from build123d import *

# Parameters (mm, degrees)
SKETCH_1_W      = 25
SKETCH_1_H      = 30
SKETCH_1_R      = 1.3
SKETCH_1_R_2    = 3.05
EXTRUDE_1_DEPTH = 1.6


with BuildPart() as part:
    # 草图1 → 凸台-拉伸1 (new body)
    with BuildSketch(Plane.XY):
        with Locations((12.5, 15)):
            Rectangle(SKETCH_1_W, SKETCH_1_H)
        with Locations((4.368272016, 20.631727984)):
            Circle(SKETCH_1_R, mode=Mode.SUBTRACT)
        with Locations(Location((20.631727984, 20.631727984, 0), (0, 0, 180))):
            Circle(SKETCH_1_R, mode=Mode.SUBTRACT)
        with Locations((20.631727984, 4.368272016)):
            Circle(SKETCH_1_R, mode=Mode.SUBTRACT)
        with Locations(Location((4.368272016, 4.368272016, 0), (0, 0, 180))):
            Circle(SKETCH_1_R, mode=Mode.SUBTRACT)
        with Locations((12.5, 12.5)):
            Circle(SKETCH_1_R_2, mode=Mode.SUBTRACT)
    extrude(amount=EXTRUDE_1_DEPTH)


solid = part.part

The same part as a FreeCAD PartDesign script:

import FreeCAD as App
import Part
import Sketcher
from FreeCAD import Vector
Q = App.Units.Quantity


def add_polygon(sketch, points):
    """Adds a closed chain of lines whose ends are joined by coincident constraints."""
    first, n = sketch.GeometryCount, len(points)
    for a, b in zip(points, points[1:] + points[:1]):
        sketch.addGeometry(Part.LineSegment(App.Vector(*a, 0), App.Vector(*b, 0)), False)
    for i in range(n):
        sketch.addConstraint(Sketcher.Constraint("Coincident", first + i, 2, first + (i + 1) % n, 1))

doc = App.newDocument("Part")
params = doc.addObject("Spreadsheet::Sheet", "Params")
for row, (alias, value) in enumerate([
    ("sketch1_diameter", "2.6 mm"),
    ("sketch1_diameter2", "6.1 mm"),
    ("sketch1_width", "25 mm"),
    ("sketch1_height", "30 mm"),
    ("pad1_length", "1.6 mm"),
], start=1):
    params.set(f"A{row}", alias)
    params.set(f"B{row}", "=" + value)
    params.setAlias(f"B{row}", alias)

body = doc.addObject("PartDesign::Body", "Body")

sketch1 = body.newObject("Sketcher::SketchObject", "Sketch")
sketch1.AttachmentSupport = (doc.getObject("XY_Plane"), [""])
sketch1.MapMode = "FlatFace"
add_polygon(sketch1, [(0, 30), (0, 0), (25, 0), (25, 30)])
sketch1.addGeometry(Part.Circle(Vector(4.4, 4.4, 0), Vector(0, 0, 1), 1.3), False)
sketch1.addGeometry(Part.Circle(Vector(20.6, 4.4, 0), Vector(0, 0, 1), 1.3), False)
sketch1.addGeometry(Part.Circle(Vector(4.4, 20.6, 0), Vector(0, 0, 1), 1.3), False)
sketch1.addGeometry(Part.Circle(Vector(12.5, 12.5, 0), Vector(0, 0, 1), 3), False)
sketch1.addGeometry(Part.Circle(Vector(20.6, 20.6, 0), Vector(0, 0, 1), 1.3), False)
sketch1.addConstraint([
    Sketcher.Constraint("Vertical", 0),
    Sketcher.Constraint("Horizontal", 1),
    Sketcher.Constraint("Vertical", 2),
    Sketcher.Constraint("Horizontal", 3),
    Sketcher.Constraint("Coincident", 0, 2, -1, 1),
    Sketcher.Constraint("Equal", 4, 5),
    Sketcher.Constraint("Equal", 5, 6),
    Sketcher.Constraint("Equal", 6, 8),
    Sketcher.Constraint("Horizontal", 4, 3, 5, 3),
    Sketcher.Constraint("Horizontal", 6, 3, 8, 3),
    Sketcher.Constraint("Vertical", 4, 3, 6, 3),
    Sketcher.Constraint("Vertical", 5, 3, 8, 3),
    Sketcher.Constraint("Diameter", 4, Q("2.6 mm")),
    Sketcher.Constraint("Diameter", 7, Q("6.1 mm")),
    Sketcher.Constraint("DistanceX", 1, 1, 1, 2, Q("25 mm")),
    Sketcher.Constraint("DistanceY", 0, 2, 0, 1, Q("30 mm")),
    Sketcher.Constraint("DistanceX", -1, 1, 7, 3, Q("12.5 mm")),
    Sketcher.Constraint("DistanceY", -1, 1, 7, 3, Q("12.5 mm")),
    Sketcher.Constraint("DistanceX", -1, 1, 4, 3, Q("4.368272 mm")),
    Sketcher.Constraint("DistanceY", -1, 1, 4, 3, Q("4.368272 mm")),
    Sketcher.Constraint("DistanceX", -1, 1, 5, 3, Q("20.631728 mm")),
    Sketcher.Constraint("DistanceY", -1, 1, 6, 3, Q("20.631728 mm")),
])
sketch1.setExpression("Constraints[16]", "Params.sketch1_diameter")
sketch1.setExpression("Constraints[17]", "Params.sketch1_diameter2")
sketch1.setExpression("Constraints[18]", "Params.sketch1_width")
sketch1.setExpression("Constraints[19]", "Params.sketch1_height")
pad1 = body.newObject("PartDesign::Pad", "Pad")
pad1.Profile = sketch1
pad1.setExpression("Length", "Params.pad1_length")

doc.recompute()
